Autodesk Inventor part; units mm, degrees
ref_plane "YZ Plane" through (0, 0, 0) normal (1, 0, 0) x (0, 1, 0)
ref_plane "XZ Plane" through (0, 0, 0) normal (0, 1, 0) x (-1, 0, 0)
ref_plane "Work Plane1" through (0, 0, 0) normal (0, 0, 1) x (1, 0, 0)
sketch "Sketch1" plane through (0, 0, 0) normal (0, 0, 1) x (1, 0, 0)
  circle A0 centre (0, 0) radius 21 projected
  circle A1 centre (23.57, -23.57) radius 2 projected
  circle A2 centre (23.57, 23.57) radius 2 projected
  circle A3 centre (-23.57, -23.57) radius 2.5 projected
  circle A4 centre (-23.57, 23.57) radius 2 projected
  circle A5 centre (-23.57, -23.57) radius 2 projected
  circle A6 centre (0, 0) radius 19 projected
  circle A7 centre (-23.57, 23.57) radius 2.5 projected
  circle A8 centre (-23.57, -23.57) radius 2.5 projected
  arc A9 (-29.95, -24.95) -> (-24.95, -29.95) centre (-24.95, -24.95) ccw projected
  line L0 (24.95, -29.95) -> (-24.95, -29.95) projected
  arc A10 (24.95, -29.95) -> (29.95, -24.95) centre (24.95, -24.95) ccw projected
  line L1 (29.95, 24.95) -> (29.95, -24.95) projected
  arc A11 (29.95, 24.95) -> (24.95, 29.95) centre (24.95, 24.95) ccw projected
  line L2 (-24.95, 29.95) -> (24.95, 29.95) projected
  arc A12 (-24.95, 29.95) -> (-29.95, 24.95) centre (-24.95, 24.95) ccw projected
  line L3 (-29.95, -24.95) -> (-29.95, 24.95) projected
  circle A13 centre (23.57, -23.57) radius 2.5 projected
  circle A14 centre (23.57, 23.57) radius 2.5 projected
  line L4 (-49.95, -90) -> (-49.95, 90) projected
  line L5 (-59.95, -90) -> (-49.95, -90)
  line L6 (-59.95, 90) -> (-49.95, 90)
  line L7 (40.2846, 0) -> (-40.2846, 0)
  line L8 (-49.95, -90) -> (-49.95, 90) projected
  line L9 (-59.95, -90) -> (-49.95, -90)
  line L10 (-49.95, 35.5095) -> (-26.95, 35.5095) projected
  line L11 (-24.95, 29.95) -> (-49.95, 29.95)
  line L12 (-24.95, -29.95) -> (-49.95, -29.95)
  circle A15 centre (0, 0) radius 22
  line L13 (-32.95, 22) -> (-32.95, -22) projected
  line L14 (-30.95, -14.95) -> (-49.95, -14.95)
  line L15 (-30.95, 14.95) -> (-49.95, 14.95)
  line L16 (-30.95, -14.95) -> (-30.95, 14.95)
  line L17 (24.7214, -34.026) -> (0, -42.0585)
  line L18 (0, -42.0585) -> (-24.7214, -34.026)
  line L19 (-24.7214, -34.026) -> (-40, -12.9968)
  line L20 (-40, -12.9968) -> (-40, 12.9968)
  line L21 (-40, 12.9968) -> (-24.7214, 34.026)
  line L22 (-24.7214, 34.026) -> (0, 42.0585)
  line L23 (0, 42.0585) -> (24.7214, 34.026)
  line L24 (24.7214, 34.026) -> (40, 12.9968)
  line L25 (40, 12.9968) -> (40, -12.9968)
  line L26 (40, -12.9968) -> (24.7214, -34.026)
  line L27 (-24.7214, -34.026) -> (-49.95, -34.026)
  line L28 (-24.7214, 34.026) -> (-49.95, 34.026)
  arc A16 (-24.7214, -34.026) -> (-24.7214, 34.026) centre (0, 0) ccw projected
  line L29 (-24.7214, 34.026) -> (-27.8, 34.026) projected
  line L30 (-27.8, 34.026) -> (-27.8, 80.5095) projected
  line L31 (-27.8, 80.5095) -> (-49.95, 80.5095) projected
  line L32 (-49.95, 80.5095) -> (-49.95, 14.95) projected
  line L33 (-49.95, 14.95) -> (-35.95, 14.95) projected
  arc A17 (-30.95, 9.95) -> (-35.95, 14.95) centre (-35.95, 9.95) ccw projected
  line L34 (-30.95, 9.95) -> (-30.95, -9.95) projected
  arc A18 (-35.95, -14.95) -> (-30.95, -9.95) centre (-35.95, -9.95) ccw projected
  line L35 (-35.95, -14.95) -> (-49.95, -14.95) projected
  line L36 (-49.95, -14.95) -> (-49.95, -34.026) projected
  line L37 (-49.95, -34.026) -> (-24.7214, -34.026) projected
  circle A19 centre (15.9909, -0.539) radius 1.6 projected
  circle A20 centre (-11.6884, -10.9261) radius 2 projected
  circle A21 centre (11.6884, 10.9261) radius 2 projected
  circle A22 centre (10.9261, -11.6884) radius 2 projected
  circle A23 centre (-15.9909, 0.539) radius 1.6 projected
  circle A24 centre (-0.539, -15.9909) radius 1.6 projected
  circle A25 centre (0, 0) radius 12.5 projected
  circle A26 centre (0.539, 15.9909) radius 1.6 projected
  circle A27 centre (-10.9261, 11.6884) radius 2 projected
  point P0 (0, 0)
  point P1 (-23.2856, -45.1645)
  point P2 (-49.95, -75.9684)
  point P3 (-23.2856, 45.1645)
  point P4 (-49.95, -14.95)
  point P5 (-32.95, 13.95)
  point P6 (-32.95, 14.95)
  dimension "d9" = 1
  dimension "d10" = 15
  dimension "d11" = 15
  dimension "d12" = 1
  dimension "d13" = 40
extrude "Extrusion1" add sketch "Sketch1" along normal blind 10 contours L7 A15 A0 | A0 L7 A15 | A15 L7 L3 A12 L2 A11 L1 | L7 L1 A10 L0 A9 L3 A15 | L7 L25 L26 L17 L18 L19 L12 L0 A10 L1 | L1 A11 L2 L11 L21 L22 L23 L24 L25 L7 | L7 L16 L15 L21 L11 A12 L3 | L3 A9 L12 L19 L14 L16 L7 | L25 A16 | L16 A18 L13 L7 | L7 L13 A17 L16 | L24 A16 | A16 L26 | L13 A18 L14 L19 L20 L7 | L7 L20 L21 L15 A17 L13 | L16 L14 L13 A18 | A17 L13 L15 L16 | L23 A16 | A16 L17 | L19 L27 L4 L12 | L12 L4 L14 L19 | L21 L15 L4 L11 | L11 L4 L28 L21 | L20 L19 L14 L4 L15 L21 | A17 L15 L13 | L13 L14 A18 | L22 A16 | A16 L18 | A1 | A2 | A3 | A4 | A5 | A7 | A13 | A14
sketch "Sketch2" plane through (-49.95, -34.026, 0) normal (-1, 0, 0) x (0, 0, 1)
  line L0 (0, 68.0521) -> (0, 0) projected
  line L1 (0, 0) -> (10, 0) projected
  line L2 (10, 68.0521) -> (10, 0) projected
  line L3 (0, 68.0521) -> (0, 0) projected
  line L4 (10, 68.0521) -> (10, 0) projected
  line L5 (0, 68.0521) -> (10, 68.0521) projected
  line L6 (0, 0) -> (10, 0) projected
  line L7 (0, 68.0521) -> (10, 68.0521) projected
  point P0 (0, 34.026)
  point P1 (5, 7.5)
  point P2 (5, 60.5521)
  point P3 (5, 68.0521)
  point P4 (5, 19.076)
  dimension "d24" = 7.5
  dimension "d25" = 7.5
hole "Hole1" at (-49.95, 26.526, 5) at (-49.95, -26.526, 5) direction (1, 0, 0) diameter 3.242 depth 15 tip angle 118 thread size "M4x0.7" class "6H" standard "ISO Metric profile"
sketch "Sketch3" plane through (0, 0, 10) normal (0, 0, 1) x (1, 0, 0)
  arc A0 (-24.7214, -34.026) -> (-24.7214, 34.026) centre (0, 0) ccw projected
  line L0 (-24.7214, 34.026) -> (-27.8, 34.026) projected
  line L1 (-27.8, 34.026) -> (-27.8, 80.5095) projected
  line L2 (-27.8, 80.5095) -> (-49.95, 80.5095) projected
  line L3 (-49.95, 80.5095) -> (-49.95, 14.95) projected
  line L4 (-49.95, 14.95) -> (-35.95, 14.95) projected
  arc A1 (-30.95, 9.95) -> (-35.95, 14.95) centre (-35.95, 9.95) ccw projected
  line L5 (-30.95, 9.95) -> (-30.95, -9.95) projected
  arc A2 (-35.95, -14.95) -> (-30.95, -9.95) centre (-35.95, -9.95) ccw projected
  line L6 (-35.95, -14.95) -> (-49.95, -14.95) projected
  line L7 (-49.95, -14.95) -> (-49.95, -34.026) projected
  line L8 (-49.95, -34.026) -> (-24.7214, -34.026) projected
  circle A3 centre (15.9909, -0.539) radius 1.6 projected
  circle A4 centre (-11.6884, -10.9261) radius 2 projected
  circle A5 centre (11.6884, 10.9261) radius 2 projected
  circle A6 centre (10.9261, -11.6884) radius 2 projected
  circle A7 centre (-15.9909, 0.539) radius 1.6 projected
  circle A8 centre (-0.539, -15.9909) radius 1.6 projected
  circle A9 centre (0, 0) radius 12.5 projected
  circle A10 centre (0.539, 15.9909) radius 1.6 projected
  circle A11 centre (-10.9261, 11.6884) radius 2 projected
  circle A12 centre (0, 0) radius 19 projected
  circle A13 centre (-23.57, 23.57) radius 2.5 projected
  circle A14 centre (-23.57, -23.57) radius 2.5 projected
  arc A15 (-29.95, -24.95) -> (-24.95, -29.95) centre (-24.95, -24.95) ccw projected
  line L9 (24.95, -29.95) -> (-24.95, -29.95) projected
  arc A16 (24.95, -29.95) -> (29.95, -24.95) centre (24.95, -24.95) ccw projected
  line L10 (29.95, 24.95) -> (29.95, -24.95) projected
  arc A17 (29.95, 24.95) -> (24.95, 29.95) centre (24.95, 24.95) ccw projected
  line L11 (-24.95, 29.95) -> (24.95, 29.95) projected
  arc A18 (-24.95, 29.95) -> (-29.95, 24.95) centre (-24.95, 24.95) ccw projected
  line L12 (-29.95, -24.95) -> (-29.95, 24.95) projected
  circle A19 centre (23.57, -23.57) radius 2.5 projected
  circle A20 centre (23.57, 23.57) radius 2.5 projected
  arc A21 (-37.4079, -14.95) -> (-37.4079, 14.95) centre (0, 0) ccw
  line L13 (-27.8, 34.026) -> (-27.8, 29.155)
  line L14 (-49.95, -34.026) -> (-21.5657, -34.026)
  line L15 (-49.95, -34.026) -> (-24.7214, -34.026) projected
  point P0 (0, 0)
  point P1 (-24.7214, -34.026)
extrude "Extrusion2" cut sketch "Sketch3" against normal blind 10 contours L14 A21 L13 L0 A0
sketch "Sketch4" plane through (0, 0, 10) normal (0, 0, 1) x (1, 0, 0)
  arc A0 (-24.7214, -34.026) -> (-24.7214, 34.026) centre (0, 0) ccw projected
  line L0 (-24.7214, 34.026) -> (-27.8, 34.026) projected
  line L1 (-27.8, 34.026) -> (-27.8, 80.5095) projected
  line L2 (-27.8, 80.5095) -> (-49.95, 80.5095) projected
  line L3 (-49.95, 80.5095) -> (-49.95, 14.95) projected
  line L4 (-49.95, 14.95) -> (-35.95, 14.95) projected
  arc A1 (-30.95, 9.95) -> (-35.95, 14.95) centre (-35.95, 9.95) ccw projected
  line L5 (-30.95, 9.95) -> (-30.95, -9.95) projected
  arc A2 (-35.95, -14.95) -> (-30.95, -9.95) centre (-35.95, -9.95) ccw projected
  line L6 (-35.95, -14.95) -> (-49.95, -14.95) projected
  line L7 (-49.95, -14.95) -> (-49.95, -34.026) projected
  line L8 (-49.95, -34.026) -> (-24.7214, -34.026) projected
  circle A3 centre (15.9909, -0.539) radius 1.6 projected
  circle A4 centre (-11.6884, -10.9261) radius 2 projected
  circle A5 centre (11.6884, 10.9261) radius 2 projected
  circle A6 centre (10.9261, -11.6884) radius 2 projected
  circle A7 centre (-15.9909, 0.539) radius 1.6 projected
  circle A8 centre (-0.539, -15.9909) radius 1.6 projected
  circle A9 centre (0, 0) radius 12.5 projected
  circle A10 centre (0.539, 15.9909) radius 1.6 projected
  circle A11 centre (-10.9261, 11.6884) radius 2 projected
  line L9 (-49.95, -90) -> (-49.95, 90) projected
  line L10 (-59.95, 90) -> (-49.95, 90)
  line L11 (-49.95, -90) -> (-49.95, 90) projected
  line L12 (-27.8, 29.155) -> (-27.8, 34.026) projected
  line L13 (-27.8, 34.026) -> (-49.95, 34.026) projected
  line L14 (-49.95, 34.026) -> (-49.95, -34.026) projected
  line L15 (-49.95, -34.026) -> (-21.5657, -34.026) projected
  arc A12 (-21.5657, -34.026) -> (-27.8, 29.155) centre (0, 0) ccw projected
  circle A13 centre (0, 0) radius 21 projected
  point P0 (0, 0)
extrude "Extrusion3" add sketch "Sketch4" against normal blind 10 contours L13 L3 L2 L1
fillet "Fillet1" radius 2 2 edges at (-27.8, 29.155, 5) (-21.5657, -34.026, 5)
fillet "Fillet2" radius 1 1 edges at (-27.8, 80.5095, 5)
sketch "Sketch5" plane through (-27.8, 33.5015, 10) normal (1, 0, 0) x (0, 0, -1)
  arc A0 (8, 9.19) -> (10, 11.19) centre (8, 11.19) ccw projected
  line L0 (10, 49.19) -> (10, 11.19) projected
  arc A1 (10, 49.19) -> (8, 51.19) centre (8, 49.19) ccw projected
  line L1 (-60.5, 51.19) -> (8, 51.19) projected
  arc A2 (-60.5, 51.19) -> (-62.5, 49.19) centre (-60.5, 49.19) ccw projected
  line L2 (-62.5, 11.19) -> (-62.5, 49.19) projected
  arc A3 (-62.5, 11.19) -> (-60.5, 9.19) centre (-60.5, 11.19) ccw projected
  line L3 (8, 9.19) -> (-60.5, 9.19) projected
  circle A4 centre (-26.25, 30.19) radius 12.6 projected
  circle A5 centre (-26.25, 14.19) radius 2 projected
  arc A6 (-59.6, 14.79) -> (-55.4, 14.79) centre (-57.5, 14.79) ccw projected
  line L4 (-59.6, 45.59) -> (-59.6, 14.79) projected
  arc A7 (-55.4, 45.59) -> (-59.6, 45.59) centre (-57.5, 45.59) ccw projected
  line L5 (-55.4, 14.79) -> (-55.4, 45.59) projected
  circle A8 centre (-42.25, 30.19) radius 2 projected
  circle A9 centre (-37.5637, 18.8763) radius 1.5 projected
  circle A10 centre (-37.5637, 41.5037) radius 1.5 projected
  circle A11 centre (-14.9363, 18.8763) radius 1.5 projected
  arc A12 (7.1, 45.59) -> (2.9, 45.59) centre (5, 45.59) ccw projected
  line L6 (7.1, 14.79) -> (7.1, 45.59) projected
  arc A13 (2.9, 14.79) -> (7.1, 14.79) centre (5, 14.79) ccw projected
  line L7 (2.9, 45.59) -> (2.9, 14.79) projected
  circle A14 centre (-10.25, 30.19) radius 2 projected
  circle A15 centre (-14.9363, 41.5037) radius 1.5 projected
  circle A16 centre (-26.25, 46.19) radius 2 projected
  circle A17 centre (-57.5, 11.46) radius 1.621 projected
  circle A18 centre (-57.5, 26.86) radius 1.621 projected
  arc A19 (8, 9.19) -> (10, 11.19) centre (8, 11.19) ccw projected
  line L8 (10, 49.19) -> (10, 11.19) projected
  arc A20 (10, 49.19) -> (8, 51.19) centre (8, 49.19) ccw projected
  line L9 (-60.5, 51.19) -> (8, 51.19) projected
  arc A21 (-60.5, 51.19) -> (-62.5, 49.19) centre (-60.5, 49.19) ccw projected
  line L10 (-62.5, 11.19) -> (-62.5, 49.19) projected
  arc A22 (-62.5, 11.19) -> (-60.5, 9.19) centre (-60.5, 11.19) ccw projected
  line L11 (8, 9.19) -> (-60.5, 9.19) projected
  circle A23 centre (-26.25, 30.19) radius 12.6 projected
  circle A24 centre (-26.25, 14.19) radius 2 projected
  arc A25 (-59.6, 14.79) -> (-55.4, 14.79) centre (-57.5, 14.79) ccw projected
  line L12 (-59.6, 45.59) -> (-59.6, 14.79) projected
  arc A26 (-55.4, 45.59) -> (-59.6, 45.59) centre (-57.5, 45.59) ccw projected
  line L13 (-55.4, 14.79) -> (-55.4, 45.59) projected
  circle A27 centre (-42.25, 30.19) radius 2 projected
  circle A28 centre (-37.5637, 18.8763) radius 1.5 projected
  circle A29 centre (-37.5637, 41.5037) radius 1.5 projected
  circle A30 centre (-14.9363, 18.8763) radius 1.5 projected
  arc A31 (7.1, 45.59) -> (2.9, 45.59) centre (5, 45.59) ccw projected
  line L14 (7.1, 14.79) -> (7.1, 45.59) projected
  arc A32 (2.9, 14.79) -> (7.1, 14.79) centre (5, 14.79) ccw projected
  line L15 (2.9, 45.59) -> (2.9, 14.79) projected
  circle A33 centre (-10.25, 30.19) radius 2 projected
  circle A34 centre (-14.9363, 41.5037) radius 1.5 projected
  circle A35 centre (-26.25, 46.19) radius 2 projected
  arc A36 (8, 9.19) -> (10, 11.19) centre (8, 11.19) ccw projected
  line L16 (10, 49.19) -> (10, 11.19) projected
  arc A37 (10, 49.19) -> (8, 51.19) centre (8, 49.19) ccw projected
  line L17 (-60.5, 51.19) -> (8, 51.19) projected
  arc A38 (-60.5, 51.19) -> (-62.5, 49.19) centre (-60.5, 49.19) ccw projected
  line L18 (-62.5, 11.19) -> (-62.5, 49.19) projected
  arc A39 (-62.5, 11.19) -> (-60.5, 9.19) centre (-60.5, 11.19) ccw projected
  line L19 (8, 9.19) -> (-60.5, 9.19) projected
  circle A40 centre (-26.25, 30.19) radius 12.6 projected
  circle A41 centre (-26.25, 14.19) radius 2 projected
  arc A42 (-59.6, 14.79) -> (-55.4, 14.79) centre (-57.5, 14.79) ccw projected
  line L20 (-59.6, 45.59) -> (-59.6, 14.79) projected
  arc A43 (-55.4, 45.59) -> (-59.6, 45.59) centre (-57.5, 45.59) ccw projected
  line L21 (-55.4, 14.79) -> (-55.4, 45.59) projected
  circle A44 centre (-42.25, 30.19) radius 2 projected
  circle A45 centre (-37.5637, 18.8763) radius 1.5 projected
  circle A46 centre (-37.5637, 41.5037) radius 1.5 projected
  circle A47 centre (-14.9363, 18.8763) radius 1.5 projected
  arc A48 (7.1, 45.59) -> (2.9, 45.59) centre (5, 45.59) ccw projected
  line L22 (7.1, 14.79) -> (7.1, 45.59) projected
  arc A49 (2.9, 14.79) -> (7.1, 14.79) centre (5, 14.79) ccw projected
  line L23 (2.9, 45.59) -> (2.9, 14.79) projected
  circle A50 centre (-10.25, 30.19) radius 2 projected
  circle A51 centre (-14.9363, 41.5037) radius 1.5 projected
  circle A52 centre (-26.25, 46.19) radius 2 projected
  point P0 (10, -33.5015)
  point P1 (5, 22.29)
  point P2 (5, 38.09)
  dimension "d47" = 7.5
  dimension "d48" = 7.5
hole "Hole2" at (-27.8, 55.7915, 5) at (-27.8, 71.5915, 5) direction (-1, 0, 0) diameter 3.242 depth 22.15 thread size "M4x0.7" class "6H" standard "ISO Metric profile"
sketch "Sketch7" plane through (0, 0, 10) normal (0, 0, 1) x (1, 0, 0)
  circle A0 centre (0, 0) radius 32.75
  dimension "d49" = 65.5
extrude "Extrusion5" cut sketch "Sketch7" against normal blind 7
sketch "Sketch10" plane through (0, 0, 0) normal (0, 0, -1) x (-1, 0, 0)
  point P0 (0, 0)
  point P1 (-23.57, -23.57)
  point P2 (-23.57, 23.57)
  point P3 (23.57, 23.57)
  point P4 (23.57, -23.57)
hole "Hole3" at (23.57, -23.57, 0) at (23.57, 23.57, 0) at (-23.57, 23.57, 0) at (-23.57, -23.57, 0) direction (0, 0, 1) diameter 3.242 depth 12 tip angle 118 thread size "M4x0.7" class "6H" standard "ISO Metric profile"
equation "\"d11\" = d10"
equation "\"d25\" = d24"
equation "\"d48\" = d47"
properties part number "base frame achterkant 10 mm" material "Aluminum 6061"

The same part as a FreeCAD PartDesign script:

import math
import FreeCAD as App
import Part
import Sketcher

V = App.Vector
Q = App.Units.Quantity


def edges_at(feature, points):
    """Names of the edges that pass closest to the given points."""
    edges = feature.Shape.Edges
    near = lambda p: min(range(len(edges)), key=lambda i: edges[i].distToShape(Part.Vertex(*p))[0])
    return sorted({f"Edge{near(p) + 1}" for p in points})

doc = App.newDocument("Part")
body = doc.addObject("PartDesign::Body", "Body")

# Sketch on XY plane
sketch1 = body.newObject("Sketcher::SketchObject", "Sketch")
sketch1.AttachmentSupport = (doc.getObject("XY_Plane"), [""])
sketch1.MapMode = "FlatFace"
sketch1.addGeometry(Part.LineSegment(V(-24.7214, 34.026, 0), V(-49.95, 34.026, 0)), False)
sketch1.addGeometry(Part.LineSegment(V(-49.95, 34.026, 0), V(-49.95, -34.026, 0)), False)
sketch1.addGeometry(Part.LineSegment(V(-49.95, -34.026, 0), V(-24.7214, -34.026, 0)), False)
sketch1.addGeometry(Part.ArcOfCircle(Part.Circle(V(0, 0, 0), V(0, 0, 1), 42.058487), math.radians(-126.00007), math.radians(126.00007)), False)
sketch1.addGeometry(Part.Circle(V(0, 0, 0), V(0, 0, 1), 21), False)
sketch1.addConstraint(Sketcher.Constraint("Coincident", 0, 2, 1, 1))
sketch1.addConstraint(Sketcher.Constraint("Coincident", 1, 2, 2, 1))
sketch1.addConstraint(Sketcher.Constraint("Coincident", 2, 2, 3, 1))
sketch1.addConstraint(Sketcher.Constraint("Coincident", 3, 2, 0, 1))
sketch1.addConstraint(Sketcher.Constraint("Horizontal", 0))
sketch1.addConstraint(Sketcher.Constraint("Vertical", 1))
sketch1.addConstraint(Sketcher.Constraint("Horizontal", 2))
sketch1.addConstraint(Sketcher.Constraint("Coincident", 3, 3, -1, 1))
sketch1.addConstraint(Sketcher.Constraint("Coincident", 4, 3, -1, 1))
sketch1.addConstraint(Sketcher.Constraint("Vertical", 2, 2, 3, 2))
sketch1.addConstraint(Sketcher.Constraint("Diameter", 4, Q("42 mm")))
sketch1.addConstraint(Sketcher.Constraint("Radius", 3, Q("42.0585 mm")))
sketch1.addConstraint(Sketcher.Constraint("DistanceY", 1, 2, 1, 1, Q("68.052 mm")))
sketch1.addConstraint(Sketcher.Constraint("DistanceX", 0, 2, -1, 1, Q("49.95 mm")))
pad1 = body.newObject("PartDesign::Pad", "Pad")
pad1.Profile = sketch1
pad1.Length = 10

# Sketch on YZ plane
sketch2 = body.newObject("Sketcher::SketchObject", "Sketch001")
sketch2.AttachmentSupport = (doc.getObject("YZ_Plane"), [""])
sketch2.MapMode = "FlatFace"
sketch2.AttachmentOffset = App.Placement(V(0, 0, -49.95), App.Rotation())
sketch2.addGeometry(Part.Circle(V(26.526, 5, 0), V(0, 0, 1), 1.621), False)
sketch2.addGeometry(Part.Circle(V(-26.526, 5, 0), V(0, 0, 1), 1.621), False)
sketch2.addConstraint(Sketcher.Constraint("Equal", 0, 1))
sketch2.addConstraint(Sketcher.Constraint("Symmetric", 0, 3, 1, 3, -2))
sketch2.addConstraint(Sketcher.Constraint("Diameter", 0, Q("3.242 mm")))
sketch2.addConstraint(Sketcher.Constraint("DistanceY", -1, 1, 0, 3, Q("5 mm")))
sketch2.addConstraint(Sketcher.Constraint("DistanceX", -1, 1, 0, 3, Q("26.526 mm")))
doc.recompute()
hole = body.newObject("PartDesign::Hole", "Hole")
hole.Profile = sketch2
hole.ThreadType = "None"
hole.Diameter = 3.242
hole.DepthType = "Dimension"
hole.Depth = 15
hole.DrillPoint = "Angled"
hole.DrillPointAngle = 118
hole.Reversed = True

# Sketch on XY plane
sketch3 = body.newObject("Sketcher::SketchObject", "Sketch002")
sketch3.AttachmentSupport = (doc.getObject("XY_Plane"), [""])
sketch3.MapMode = "FlatFace"
sketch3.AttachmentOffset = App.Placement(V(0, 0, 10), App.Rotation())
sketch3.addGeometry(Part.LineSegment(V(-21.5657, -34.026, 0), V(-24.7214, -34.026, 0)), False)
sketch3.addGeometry(Part.ArcOfCircle(Part.Circle(V(0, 0, 0), V(0, 0, 1), 42.058487), math.radians(-126.00007), math.radians(126.00007)), False)
sketch3.addGeometry(Part.LineSegment(V(-24.7214, 34.026, 0), V(-27.8, 34.026, 0)), False)
sketch3.addGeometry(Part.LineSegment(V(-27.8, 34.026, 0), V(-27.8, 29.155, 0)), False)
sketch3.addGeometry(Part.ArcOfCircle(Part.Circle(V(0, 0, 0), V(0, 0, 1), 40.284656), math.radians(-122.366548), math.radians(133.63715)), False)
sketch3.addConstraint(Sketcher.Constraint("Coincident", 0, 2, 1, 1))
sketch3.addConstraint(Sketcher.Constraint("Coincident", 1, 2, 2, 1))
sketch3.addConstraint(Sketcher.Constraint("Coincident", 2, 2, 3, 1))
sketch3.addConstraint(Sketcher.Constraint("Coincident", 3, 2, 4, 2))
sketch3.addConstraint(Sketcher.Constraint("Coincident", 4, 1, 0, 1))
sketch3.addConstraint(Sketcher.Constraint("Horizontal", 0))
sketch3.addConstraint(Sketcher.Constraint("Horizontal", 2))
sketch3.addConstraint(Sketcher.Constraint("Vertical", 3))
sketch3.addConstraint(Sketcher.Constraint("Coincident", 1, 3, -1, 1))
sketch3.addConstraint(Sketcher.Constraint("Coincident", 4, 3, -1, 1))
sketch3.addConstraint(Sketcher.Constraint("Vertical", 0, 2, 1, 2))
sketch3.addConstraint(Sketcher.Constraint("DistanceX", 2, 2, -1, 1, Q("27.8 mm")))
sketch3.addConstraint(Sketcher.Constraint("Radius", 1, Q("42.0585 mm")))
sketch3.addConstraint(Sketcher.Constraint("Radius", 4, Q("40.2847 mm")))
sketch3.addConstraint(Sketcher.Constraint("DistanceY", 3, 2, 3, 1, Q("4.871 mm")))
pocket1 = body.newObject("PartDesign::Pocket", "Pocket")
pocket1.Profile = sketch3
pocket1.Length = 10

# Sketch on XY plane
sketch4 = body.newObject("Sketcher::SketchObject", "Sketch003")
sketch4.AttachmentSupport = (doc.getObject("XY_Plane"), [""])
sketch4.MapMode = "FlatFace"
sketch4.AttachmentOffset = App.Placement(V(0, 0, 10), App.Rotation())
sketch4.addGeometry(Part.LineSegment(V(-49.95, 34.026, 0), V(-27.8, 34.026, 0)), False)
sketch4.addGeometry(Part.LineSegment(V(-27.8, 34.026, 0), V(-27.8, 80.5095, 0)), False)
sketch4.addGeometry(Part.LineSegment(V(-27.8, 80.5095, 0), V(-49.95, 80.5095, 0)), False)
sketch4.addGeometry(Part.LineSegment(V(-49.95, 80.5095, 0), V(-49.95, 34.026, 0)), False)
sketch4.addConstraint(Sketcher.Constraint("Coincident", 0, 2, 1, 1))
sketch4.addConstraint(Sketcher.Constraint("Coincident", 1, 2, 2, 1))
sketch4.addConstraint(Sketcher.Constraint("Coincident", 2, 2, 3, 1))
sketch4.addConstraint(Sketcher.Constraint("Coincident", 3, 2, 0, 1))
sketch4.addConstraint(Sketcher.Constraint("Horizontal", 0))
sketch4.addConstraint(Sketcher.Constraint("Vertical", 1))
sketch4.addConstraint(Sketcher.Constraint("Horizontal", 2))
sketch4.addConstraint(Sketcher.Constraint("Vertical", 3))
sketch4.addConstraint(Sketcher.Constraint("DistanceX", 0, 1, 0, 2, Q("22.15 mm")))
sketch4.addConstraint(Sketcher.Constraint("DistanceX", 0, 2, -1, 1, Q("27.8 mm")))
sketch4.addConstraint(Sketcher.Constraint("DistanceY", 1, 1, 1, 2, Q("46.4835 mm")))
sketch4.addConstraint(Sketcher.Constraint("DistanceY", -1, 1, 0, 2, Q("34.026 mm")))
pad2 = body.newObject("PartDesign::Pad", "Pad001")
pad2.Profile = sketch4
pad2.Length = 10
pad2.Reversed = True
doc.recompute()

fillet = body.newObject("PartDesign::Fillet", "Fillet")
fillet.Base = (pad2, edges_at(pad2, [(-27.8, 29.155, 5), (-21.566, -34.026, 5)]))
fillet.Radius = 2
doc.recompute()

fillet2 = body.newObject("PartDesign::Fillet", "Fillet001")
fillet2.Base = (fillet, edges_at(fillet, [(-27.8, 80.51, 5)]))
fillet2.Radius = 1

# Sketch on YZ plane
sketch5 = body.newObject("Sketcher::SketchObject", "Sketch004")
sketch5.AttachmentSupport = (doc.getObject("YZ_Plane"), [""])
sketch5.MapMode = "FlatFace"
sketch5.AttachmentOffset = App.Placement(V(0, 0, -27.8), App.Rotation())
sketch5.addGeometry(Part.Circle(V(55.7915, 5, 0), V(0, 0, 1), 1.621), False)
sketch5.addGeometry(Part.Circle(V(71.5915, 5, 0), V(0, 0, 1), 1.621), False)
sketch5.addConstraint(Sketcher.Constraint("Equal", 0, 1))
sketch5.addConstraint(Sketcher.Constraint("Horizontal", 0, 3, 1, 3))
sketch5.addConstraint(Sketcher.Constraint("Diameter", 0, Q("3.242 mm")))
sketch5.addConstraint(Sketcher.Constraint("DistanceY", -1, 1, 0, 3, Q("5 mm")))
sketch5.addConstraint(Sketcher.Constraint("DistanceX", 0, 3, 1, 3, Q("15.8 mm")))
sketch5.addConstraint(Sketcher.Constraint("DistanceX", -1, 1, 0, 3, Q("55.7915 mm")))
doc.recompute()
hole2 = body.newObject("PartDesign::Hole", "Hole001")
hole2.Profile = sketch5
hole2.ThreadType = "None"
hole2.Diameter = 3.242
hole2.DepthType = "Dimension"
hole2.Depth = 22.15
hole2.DrillPoint = "Flat"

# Sketch on XY plane
sketch6 = body.newObject("Sketcher::SketchObject", "Sketch005")
sketch6.AttachmentSupport = (doc.getObject("XY_Plane"), [""])
sketch6.MapMode = "FlatFace"
sketch6.AttachmentOffset = App.Placement(V(0, 0, 10), App.Rotation())
sketch6.addGeometry(Part.Circle(V(0, 0, 0), V(0, 0, 1), 32.75), False)
sketch6.addConstraint(Sketcher.Constraint("Coincident", 0, 3, -1, 1))
sketch6.addConstraint(Sketcher.Constraint("Diameter", 0, Q("65.5 mm")))
pocket2 = body.newObject("PartDesign::Pocket", "Pocket001")
pocket2.Profile = sketch6
pocket2.Length = 7

# Sketch on XY plane
sketch7 = body.newObject("Sketcher::SketchObject", "Sketch006")
sketch7.AttachmentSupport = (doc.getObject("XY_Plane"), [""])
sketch7.MapMode = "FlatFace"
sketch7.addGeometry(Part.Circle(V(23.57, -23.57, 0), V(0, 0, 1), 1.621), False)
sketch7.addGeometry(Part.Circle(V(23.57, 23.57, 0), V(0, 0, 1), 1.621), False)
sketch7.addGeometry(Part.Circle(V(-23.57, 23.57, 0), V(0, 0, 1), 1.621), False)
sketch7.addGeometry(Part.Circle(V(-23.57, -23.57, 0), V(0, 0, 1), 1.621), False)
sketch7.addConstraint(Sketcher.Constraint("Equal", 0, 1))
sketch7.addConstraint(Sketcher.Constraint("Equal", 1, 2))
sketch7.addConstraint(Sketcher.Constraint("Equal", 2, 3))
sketch7.addConstraint(Sketcher.Constraint("Symmetric", 0, 3, 2, 3, -1, 1))
sketch7.addConstraint(Sketcher.Constraint("Symmetric", 1, 3, 3, 3, -1, 1))
sketch7.addConstraint(Sketcher.Constraint("Symmetric", 1, 3, 2, 3, -2))
sketch7.addConstraint(Sketcher.Constraint("Diameter", 0, Q("3.242 mm")))
sketch7.addConstraint(Sketcher.Constraint("DistanceX", -1, 1, 0, 3, Q("23.57 mm")))
sketch7.addConstraint(Sketcher.Constraint("DistanceY", 0, 3, -1, 1, Q("23.57 mm")))
doc.recompute()
hole3 = body.newObject("PartDesign::Hole", "Hole002")
hole3.Profile = sketch7
hole3.ThreadType = "None"
hole3.Diameter = 3.242
hole3.DepthType = "Dimension"
hole3.Depth = 12
hole3.DrillPoint = "Angled"
hole3.DrillPointAngle = 118
hole3.Reversed = True

doc.recompute()
